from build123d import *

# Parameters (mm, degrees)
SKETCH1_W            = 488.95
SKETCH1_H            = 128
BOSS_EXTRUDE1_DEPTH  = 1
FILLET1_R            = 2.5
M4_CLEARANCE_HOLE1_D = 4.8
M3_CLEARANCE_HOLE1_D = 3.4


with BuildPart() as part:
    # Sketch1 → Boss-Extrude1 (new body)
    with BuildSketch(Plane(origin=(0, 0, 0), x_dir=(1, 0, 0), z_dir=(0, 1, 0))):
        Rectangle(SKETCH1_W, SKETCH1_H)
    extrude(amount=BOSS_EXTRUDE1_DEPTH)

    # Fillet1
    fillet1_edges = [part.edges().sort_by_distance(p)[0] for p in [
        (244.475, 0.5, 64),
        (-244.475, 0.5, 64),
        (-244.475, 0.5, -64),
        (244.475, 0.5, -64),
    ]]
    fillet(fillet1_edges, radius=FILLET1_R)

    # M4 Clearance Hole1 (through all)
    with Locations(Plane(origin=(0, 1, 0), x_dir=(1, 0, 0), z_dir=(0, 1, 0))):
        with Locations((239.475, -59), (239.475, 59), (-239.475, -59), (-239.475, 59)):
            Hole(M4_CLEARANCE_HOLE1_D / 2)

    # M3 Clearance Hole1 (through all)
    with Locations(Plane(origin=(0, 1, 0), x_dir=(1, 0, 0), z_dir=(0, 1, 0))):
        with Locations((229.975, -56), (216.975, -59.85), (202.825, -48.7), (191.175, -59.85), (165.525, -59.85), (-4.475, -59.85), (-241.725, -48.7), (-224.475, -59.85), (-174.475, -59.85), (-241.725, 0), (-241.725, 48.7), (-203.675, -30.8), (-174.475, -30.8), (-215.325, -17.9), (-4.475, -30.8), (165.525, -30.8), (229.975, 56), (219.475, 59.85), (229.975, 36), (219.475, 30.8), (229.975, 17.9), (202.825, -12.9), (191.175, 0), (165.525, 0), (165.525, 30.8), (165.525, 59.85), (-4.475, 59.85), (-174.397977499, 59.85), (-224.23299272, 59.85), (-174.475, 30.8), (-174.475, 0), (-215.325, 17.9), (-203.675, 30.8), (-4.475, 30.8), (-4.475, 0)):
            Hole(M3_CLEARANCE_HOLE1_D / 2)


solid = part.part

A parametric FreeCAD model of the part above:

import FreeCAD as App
import Part
import Sketcher
Q = App.Units.Quantity


def edges_at(feature, points):
    """Names of the edges that pass closest to the given points."""
    edges = feature.Shape.Edges
    near = lambda p: min(range(len(edges)), key=lambda i: edges[i].distToShape(Part.Vertex(*p))[0])
    return sorted({f"Edge{near(p) + 1}" for p in points})


def add_polygon(sketch, points):
    """Adds a closed chain of lines whose ends are joined by coincident constraints."""
    first, n = sketch.GeometryCount, len(points)
    for a, b in zip(points, points[1:] + points[:1]):
        sketch.addGeometry(Part.LineSegment(App.Vector(*a, 0), App.Vector(*b, 0)), False)
    for i in range(n):
        sketch.addConstraint(Sketcher.Constraint("Coincident", first + i, 2, first + (i + 1) % n, 1))

doc = App.newDocument("Part")
body = doc.addObject("PartDesign::Body", "Body")

# Sketch on XZ plane
sketch1 = doc.addObject("Sketcher::SketchObject", "Sketch")
body.addObject(sketch1)
sketch1.AttachmentSupport = (doc.XZ_Plane, [""])
sketch1.MapMode = "FlatFace"
add_polygon(sketch1, [(-244, -64), (-244, 64), (244, 64), (244, -64)])  # lines 0-3
sketch1.addConstraint([
    Sketcher.Constraint("Vertical", 0),
    Sketcher.Constraint("Horizontal", 1),
    Sketcher.Constraint("Vertical", 2),
    Sketcher.Constraint("Horizontal", 3),
    Sketcher.Constraint("Symmetric", 0, 2, 2, 2, -1, 1),
    Sketcher.Constraint("DistanceY", 0, 1, 0, 2, Q("128 mm")),
    Sketcher.Constraint("DistanceX", 1, 1, 1, 2, Q("488.95 mm")),
])
pad1 = doc.addObject("PartDesign::Pad", "Pad")
body.addObject(pad1)
pad1.Profile = sketch1
pad1.Length = 1
pad1.Reversed = True
doc.recompute()

fillet = doc.addObject("PartDesign::Fillet", "Fillet")
body.addObject(fillet)
fillet.Base = (pad1, edges_at(pad1, [
    (244.475, 0.5, 64),
    (-244.475, 0.5, 64),
    (-244.475, 0.5, -64),
    (244.475, 0.5, -64),
]))
fillet.Radius = 2.5

# Sketch on XZ plane
sketch2 = doc.addObject("Sketcher::SketchObject", "Sketch001")
body.addObject(sketch2)
sketch2.AttachmentSupport = (doc.XZ_Plane, [""])
sketch2.MapMode = "FlatFace"
sketch2.AttachmentOffset = App.Placement(App.Vector(0, 0, -1), App.Rotation())
sketch2.addGeometry([
    Part.Circle(App.Vector(239.5, 59, 0), App.Vector(0, 0, 1), 2.4),
    Part.Circle(App.Vector(239.5, -59, 0), App.Vector(0, 0, 1), 2.4),
    Part.Circle(App.Vector(-239.5, 59, 0), App.Vector(0, 0, 1), 2.4),
    Part.Circle(App.Vector(-239.5, -59, 0), App.Vector(0, 0, 1), 2.4),
], False)
sketch2.addConstraint([
    Sketcher.Constraint("Equal", 0, 1),
    Sketcher.Constraint("Equal", 1, 2),
    Sketcher.Constraint("Equal", 2, 3),
    Sketcher.Constraint("Symmetric", 1, 3, 2, 3, -1, 1),
    Sketcher.Constraint("Symmetric", 0, 3, 3, 3, -1, 1),
    Sketcher.Constraint("Symmetric", 0, 3, 2, 3, -2),
    Sketcher.Constraint("Diameter", 0, Q("4.8 mm")),
    Sketcher.Constraint("DistanceY", -1, 1, 0, 3, Q("59 mm")),
    Sketcher.Constraint("DistanceX", 2, 3, 0, 3, Q("478.95 mm")),
])
doc.recompute()
hole = doc.addObject("PartDesign::Hole", "Hole")
body.addObject(hole)
hole.Profile = sketch2
hole.ThreadType = "None"
hole.Diameter = 4.8
hole.DepthType = "ThroughAll"
hole.Reversed = True

# Sketch on XZ plane
sketch3 = doc.addObject("Sketcher::SketchObject", "Sketch002")
body.addObject(sketch3)
sketch3.AttachmentSupport = (doc.XZ_Plane, [""])
sketch3.MapMode = "FlatFace"
sketch3.AttachmentOffset = App.Placement(App.Vector(0, 0, -1), App.Rotation())
sketch3.addGeometry([
    Part.Circle(App.Vector(230, 56, 0), App.Vector(0, 0, 1), 1.7),  # 0
    Part.Circle(App.Vector(217, 59.9, 0), App.Vector(0, 0, 1), 1.7),  # 1
    Part.Circle(App.Vector(202.8, 48.7, 0), App.Vector(0, 0, 1), 1.7),  # 2
    Part.Circle(App.Vector(191.2, 59.9, 0), App.Vector(0, 0, 1), 1.7),  # 3
    Part.Circle(App.Vector(165.5, 59.9, 0), App.Vector(0, 0, 1), 1.7),  # 4
    Part.Circle(App.Vector(-4.5, 59.9, 0), App.Vector(0, 0, 1), 1.7),  # 5
    Part.Circle(App.Vector(-241.7, 48.7, 0), App.Vector(0, 0, 1), 1.7),  # 6
    Part.Circle(App.Vector(-224.5, 59.9, 0), App.Vector(0, 0, 1), 1.7),  # 7
    Part.Circle(App.Vector(-174.5, 59.9, 0), App.Vector(0, 0, 1), 1.7),  # 8
    Part.Circle(App.Vector(-241.7, 0, 0), App.Vector(0, 0, 1), 1.7),  # 9
    Part.Circle(App.Vector(-241.7, -48.7, 0), App.Vector(0, 0, 1), 1.7),  # 10
    Part.Circle(App.Vector(-203.7, 30.8, 0), App.Vector(0, 0, 1), 1.7),  # 11
    Part.Circle(App.Vector(-174.5, 30.8, 0), App.Vector(0, 0, 1), 1.7),  # 12
    Part.Circle(App.Vector(-215.3, 17.9, 0), App.Vector(0, 0, 1), 1.7),  # 13
    Part.Circle(App.Vector(-4.5, 30.8, 0), App.Vector(0, 0, 1), 1.7),  # 14
    Part.Circle(App.Vector(165.5, 30.8, 0), App.Vector(0, 0, 1), 1.7),  # 15
    Part.Circle(App.Vector(230, -56, 0), App.Vector(0, 0, 1), 1.7),  # 16
    Part.Circle(App.Vector(219.5, -59.9, 0), App.Vector(0, 0, 1), 1.7),  # 17
    Part.Circle(App.Vector(230, -36, 0), App.Vector(0, 0, 1), 1.7),  # 18
    Part.Circle(App.Vector(219.5, -30.8, 0), App.Vector(0, 0, 1), 1.7),  # 19
    Part.Circle(App.Vector(230, -17.9, 0), App.Vector(0, 0, 1), 1.7),  # 20
    Part.Circle(App.Vector(202.8, 12.9, 0), App.Vector(0, 0, 1), 1.7),  # 21
    Part.Circle(App.Vector(191.2, 0, 0), App.Vector(0, 0, 1), 1.7),  # 22
    Part.Circle(App.Vector(165.5, 0, 0), App.Vector(0, 0, 1), 1.7),  # 23
    Part.Circle(App.Vector(165.5, -30.8, 0), App.Vector(0, 0, 1), 1.7),  # 24
    Part.Circle(App.Vector(165.5, -59.9, 0), App.Vector(0, 0, 1), 1.7),  # 25
    Part.Circle(App.Vector(-4.5, -59.9, 0), App.Vector(0, 0, 1), 1.7),  # 26
    Part.Circle(App.Vector(-174.4, -59.9, 0), App.Vector(0, 0, 1), 1.7),  # 27
    Part.Circle(App.Vector(-224.2, -59.9, 0), App.Vector(0, 0, 1), 1.7),  # 28
    Part.Circle(App.Vector(-174.5, -30.8, 0), App.Vector(0, 0, 1), 1.7),  # 29
    Part.Circle(App.Vector(-174.5, 0, 0), App.Vector(0, 0, 1), 1.7),  # 30
    Part.Circle(App.Vector(-215.3, -17.9, 0), App.Vector(0, 0, 1), 1.7),  # 31
    Part.Circle(App.Vector(-203.7, -30.8, 0), App.Vector(0, 0, 1), 1.7),  # 32
    Part.Circle(App.Vector(-4.5, -30.8, 0), App.Vector(0, 0, 1), 1.7),  # 33
    Part.Circle(App.Vector(-4.5, 0, 0), App.Vector(0, 0, 1), 1.7),  # 34
], False)
sketch3.addConstraint([
    Sketcher.Constraint("Equal", 0, 1),
    Sketcher.Constraint("Equal", 1, 2),
    Sketcher.Constraint("Equal", 2, 3),
    Sketcher.Constraint("Equal", 3, 4),
    Sketcher.Constraint("Equal", 4, 5),
    Sketcher.Constraint("Equal", 5, 6),
    Sketcher.Constraint("Equal", 6, 7),
    Sketcher.Constraint("Equal", 7, 8),
    Sketcher.Constraint("Equal", 8, 9),
    Sketcher.Constraint("Equal", 9, 10),
    Sketcher.Constraint("Equal", 10, 11),
    Sketcher.Constraint("Equal", 11, 12),
    Sketcher.Constraint("Equal", 12, 13),
    Sketcher.Constraint("Equal", 13, 14),
    Sketcher.Constraint("Equal", 14, 15),
    Sketcher.Constraint("Equal", 15, 16),
    Sketcher.Constraint("Equal", 16, 17),
    Sketcher.Constraint("Equal", 17, 18),
    Sketcher.Constraint("Equal", 18, 19),
    Sketcher.Constraint("Equal", 19, 20),
    Sketcher.Constraint("Equal", 20, 21),
    Sketcher.Constraint("Equal", 21, 22),
    Sketcher.Constraint("Equal", 22, 23),
    Sketcher.Constraint("Equal", 23, 24),
    Sketcher.Constraint("Equal", 24, 25),
    Sketcher.Constraint("Equal", 25, 26),
    Sketcher.Constraint("Equal", 26, 27),
    Sketcher.Constraint("Equal", 27, 28),
    Sketcher.Constraint("Equal", 28, 29),
    Sketcher.Constraint("Equal", 29, 30),
    Sketcher.Constraint("Equal", 30, 31),
    Sketcher.Constraint("Equal", 31, 32),
    Sketcher.Constraint("Equal", 32, 33),
    Sketcher.Constraint("Equal", 33, 34),
    Sketcher.Constraint("Symmetric", 6, 3, 10, 3, -1),
    Sketcher.Constraint("Symmetric", 0, 3, 16, 3, -1),
    Sketcher.Constraint("Symmetric", 15, 3, 24, 3, -1),
    Sketcher.Constraint("Symmetric", 4, 3, 25, 3, -1),
    Sketcher.Constraint("Symmetric", 5, 3, 26, 3, -1),
    Sketcher.Constraint("Symmetric", 12, 3, 29, 3, -1),
    Sketcher.Constraint("Symmetric", 13, 3, 31, 3, -1),
    Sketcher.Constraint("Symmetric", 11, 3, 32, 3, -1),
    Sketcher.Constraint("Symmetric", 14, 3, 33, 3, -1),
    Sketcher.Constraint("PointOnObject", 9, 3, -1),
    Sketcher.Constraint("PointOnObject", 22, 3, -1),
    Sketcher.Constraint("PointOnObject", 23, 3, -1),
    Sketcher.Constraint("PointOnObject", 30, 3, -1),
    Sketcher.Constraint("PointOnObject", 34, 3, -1),
    Sketcher.Constraint("Horizontal", 1, 3, 3, 3),
    Sketcher.Constraint("Horizontal", 3, 3, 4, 3),
    Sketcher.Constraint("Horizontal", 4, 3, 5, 3),
    Sketcher.Constraint("Horizontal", 2, 3, 6, 3),
    Sketcher.Constraint("Horizontal", 5, 3, 7, 3),
    Sketcher.Constraint("Horizontal", 7, 3, 8, 3),
    Sketcher.Constraint("Horizontal", 11, 3, 12, 3),
    Sketcher.Constraint("Horizontal", 12, 3, 14, 3),
    Sketcher.Constraint("Horizontal", 14, 3, 15, 3),
    Sketcher.Constraint("Horizontal", 19, 3, 24, 3),
    Sketcher.Constraint("Horizontal", 17, 3, 25, 3),
    Sketcher.Constraint("Horizontal", 26, 3, 27, 3),
    Sketcher.Constraint("Horizontal", 27, 3, 28, 3),
    Sketcher.Constraint("Horizontal", 20, 3, 31, 3),
    Sketcher.Constraint("Vertical", 6, 3, 9, 3),
    Sketcher.Constraint("Vertical", 8, 3, 12, 3),
    Sketcher.Constraint("Vertical", 5, 3, 14, 3),
    Sketcher.Constraint("Vertical", 4, 3, 15, 3),
    Sketcher.Constraint("Vertical", 16, 3, 18, 3),
    Sketcher.Constraint("Vertical", 17, 3, 19, 3),
    Sketcher.Constraint("Vertical", 18, 3, 20, 3),
    Sketcher.Constraint("Vertical", 2, 3, 21, 3),
    Sketcher.Constraint("Vertical", 3, 3, 22, 3),
    Sketcher.Constraint("Vertical", 15, 3, 23, 3),
    Sketcher.Constraint("Vertical", 29, 3, 30, 3),
    Sketcher.Constraint("Vertical", 33, 3, 34, 3),
    Sketcher.Constraint("Diameter", 0, Q("3.4 mm")),
    Sketcher.Constraint("DistanceY", -1, 1, 0, 3, Q("56 mm")),
    Sketcher.Constraint("DistanceY", 18, 3, -1, 1, Q("36 mm")),
    Sketcher.Constraint("DistanceX", 1, 3, 0, 3, Q("13 mm")),
    Sketcher.Constraint("DistanceX", 5, 3, 4, 3, Q("170 mm")),
    Sketcher.Constraint("DistanceX", 7, 3, 5, 3, Q("220 mm")),
    Sketcher.Constraint("DistanceX", 7, 3, 8, 3, Q("50 mm")),
    Sketcher.Constraint("DistanceY", -1, 1, 2, 3, Q("48.7 mm")),
    Sketcher.Constraint("DistanceY", -1, 1, 11, 3, Q("30.8 mm")),
    Sketcher.Constraint("DistanceY", -1, 1, 13, 3, Q("17.9 mm")),
    Sketcher.Constraint("DistanceY", -1, 1, 21, 3, Q("12.9 mm")),
    Sketcher.Constraint("DistanceX", 3, 3, 1, 3, Q("25.8 mm")),
    Sketcher.Constraint("DistanceX", 4, 3, 2, 3, Q("37.3 mm")),
    Sketcher.Constraint("DistanceX", 6, 3, 3, 3, Q("432.9 mm")),
    Sketcher.Constraint("DistanceX", 7, 3, 11, 3, Q("20.8 mm")),
    Sketcher.Constraint("DistanceX", 9, 3, 13, 3, Q("26.4 mm")),
    Sketcher.Constraint("DistanceX", 17, 3, 16, 3, Q("10.5 mm")),
    Sketcher.Constraint("DistanceY", 17, 3, 1, 3, Q("119.7 mm")),
    Sketcher.Constraint("DistanceX", 2, 3, 1, 3, Q("14.15 mm")),
    Sketcher.Constraint("DistanceX", -1, 1, 0, 3, Q("229.975 mm")),
    Sketcher.Constraint("DistanceX", 27, 3, -1, 1, Q("174.397977 mm")),
    Sketcher.Constraint("DistanceX", 28, 3, -1, 1, Q("224.232993 mm")),
])
doc.recompute()
hole2 = doc.addObject("PartDesign::Hole", "Hole001")
body.addObject(hole2)
hole2.Profile = sketch3
hole2.ThreadType = "None"
hole2.Diameter = 3.4
hole2.DepthType = "ThroughAll"
hole2.Reversed = True

doc.recompute()
